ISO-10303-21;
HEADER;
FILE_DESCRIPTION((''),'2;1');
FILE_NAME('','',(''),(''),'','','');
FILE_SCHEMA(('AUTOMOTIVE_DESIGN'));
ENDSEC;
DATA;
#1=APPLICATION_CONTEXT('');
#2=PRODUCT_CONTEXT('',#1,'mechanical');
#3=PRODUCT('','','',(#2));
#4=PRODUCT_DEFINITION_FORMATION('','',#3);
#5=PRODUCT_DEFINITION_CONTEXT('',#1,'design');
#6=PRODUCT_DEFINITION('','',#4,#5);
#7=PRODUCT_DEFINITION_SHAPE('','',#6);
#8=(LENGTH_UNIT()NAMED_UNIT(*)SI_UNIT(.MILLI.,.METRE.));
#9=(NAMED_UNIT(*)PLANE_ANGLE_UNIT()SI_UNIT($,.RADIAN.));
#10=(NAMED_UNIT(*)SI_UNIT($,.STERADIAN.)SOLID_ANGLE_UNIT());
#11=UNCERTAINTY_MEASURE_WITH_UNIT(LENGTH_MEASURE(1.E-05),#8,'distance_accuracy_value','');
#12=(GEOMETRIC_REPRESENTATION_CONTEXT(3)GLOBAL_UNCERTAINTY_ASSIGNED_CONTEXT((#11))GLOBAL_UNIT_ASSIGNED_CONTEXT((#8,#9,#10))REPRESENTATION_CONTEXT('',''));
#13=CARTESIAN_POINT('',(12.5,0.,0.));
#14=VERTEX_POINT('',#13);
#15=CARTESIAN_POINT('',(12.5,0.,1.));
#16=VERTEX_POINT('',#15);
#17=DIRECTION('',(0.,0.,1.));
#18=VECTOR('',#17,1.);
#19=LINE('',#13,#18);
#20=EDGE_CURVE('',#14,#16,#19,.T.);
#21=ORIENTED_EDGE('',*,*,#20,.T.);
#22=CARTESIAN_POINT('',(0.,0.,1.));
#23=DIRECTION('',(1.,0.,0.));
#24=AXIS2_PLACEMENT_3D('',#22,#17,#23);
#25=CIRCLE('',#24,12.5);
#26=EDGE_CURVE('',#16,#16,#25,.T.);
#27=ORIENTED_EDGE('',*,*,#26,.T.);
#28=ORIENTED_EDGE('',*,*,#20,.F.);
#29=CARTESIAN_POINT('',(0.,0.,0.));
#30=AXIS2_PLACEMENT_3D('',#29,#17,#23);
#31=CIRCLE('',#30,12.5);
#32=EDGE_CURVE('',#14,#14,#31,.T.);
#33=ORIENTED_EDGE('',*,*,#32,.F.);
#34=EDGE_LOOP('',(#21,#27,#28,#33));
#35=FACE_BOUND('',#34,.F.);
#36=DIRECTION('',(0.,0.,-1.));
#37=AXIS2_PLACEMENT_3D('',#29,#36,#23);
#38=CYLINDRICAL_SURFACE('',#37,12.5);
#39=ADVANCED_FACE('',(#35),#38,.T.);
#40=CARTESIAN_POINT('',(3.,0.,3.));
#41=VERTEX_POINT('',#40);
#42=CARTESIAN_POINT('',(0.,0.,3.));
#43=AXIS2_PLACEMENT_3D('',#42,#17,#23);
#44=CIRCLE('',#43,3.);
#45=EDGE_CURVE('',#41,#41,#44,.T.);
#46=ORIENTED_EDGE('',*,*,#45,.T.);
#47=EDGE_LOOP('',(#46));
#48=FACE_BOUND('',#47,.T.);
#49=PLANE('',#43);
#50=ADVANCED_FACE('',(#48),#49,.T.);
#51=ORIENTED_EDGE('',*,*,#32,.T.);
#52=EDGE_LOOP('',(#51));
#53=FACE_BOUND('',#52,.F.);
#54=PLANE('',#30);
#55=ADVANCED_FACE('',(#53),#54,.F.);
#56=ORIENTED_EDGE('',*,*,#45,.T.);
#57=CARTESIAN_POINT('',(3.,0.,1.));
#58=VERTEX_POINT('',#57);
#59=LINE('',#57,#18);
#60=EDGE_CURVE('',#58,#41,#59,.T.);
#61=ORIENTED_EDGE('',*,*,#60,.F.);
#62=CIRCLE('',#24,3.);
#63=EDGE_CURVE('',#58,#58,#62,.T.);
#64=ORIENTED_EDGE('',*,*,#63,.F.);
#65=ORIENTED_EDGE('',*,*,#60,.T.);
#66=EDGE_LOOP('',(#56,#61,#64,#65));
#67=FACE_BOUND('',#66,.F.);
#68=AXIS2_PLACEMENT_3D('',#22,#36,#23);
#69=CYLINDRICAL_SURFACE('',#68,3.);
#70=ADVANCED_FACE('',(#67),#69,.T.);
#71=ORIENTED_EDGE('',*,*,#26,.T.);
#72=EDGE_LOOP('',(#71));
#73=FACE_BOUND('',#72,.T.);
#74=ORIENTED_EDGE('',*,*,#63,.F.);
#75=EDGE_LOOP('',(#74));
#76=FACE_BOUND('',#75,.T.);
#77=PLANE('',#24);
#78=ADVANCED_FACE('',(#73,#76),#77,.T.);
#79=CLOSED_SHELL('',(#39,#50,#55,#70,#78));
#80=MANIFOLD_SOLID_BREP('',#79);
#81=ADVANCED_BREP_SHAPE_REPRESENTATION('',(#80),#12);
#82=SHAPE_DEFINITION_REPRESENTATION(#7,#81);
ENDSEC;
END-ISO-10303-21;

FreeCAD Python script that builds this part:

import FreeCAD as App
import Part
import Sketcher

V = App.Vector
Q = App.Units.Quantity

doc = App.newDocument("Part")
params = doc.addObject("Spreadsheet::Sheet", "Params")
for row, (alias, value) in enumerate([
    ("sketch1_diameter", "25 mm"),
    ("pad1_length", "1 mm"),
    ("sketch2_diameter", "6 mm"),
    ("pad2_length", "2 mm"),
], start=1):
    params.set(f"A{row}", alias)
    params.set(f"B{row}", "=" + value)
    params.setAlias(f"B{row}", alias)

body = doc.addObject("PartDesign::Body", "Body")

# Sketch on XY plane
sketch1 = doc.addObject("Sketcher::SketchObject", "Sketch")
body.addObject(sketch1)
sketch1.AttachmentSupport = (doc.XY_Plane, [""])
sketch1.MapMode = "FlatFace"
sketch1.addGeometry(Part.Circle(V(0, 0, 0), V(0, 0, 1), 12), False)
sketch1.addConstraint(Sketcher.Constraint("Coincident", 0, 3, -1, 1))
sketch1.addConstraint(Sketcher.Constraint("Diameter", 0, Q("25 mm")))
sketch1.setExpression("Constraints[1]", "Params.sketch1_diameter")
pad1 = doc.addObject("PartDesign::Pad", "Pad")
body.addObject(pad1)
pad1.Profile = sketch1
pad1.setExpression("Length", "Params.pad1_length")

# Sketch on XY plane
sketch2 = doc.addObject("Sketcher::SketchObject", "Sketch001")
body.addObject(sketch2)
sketch2.AttachmentSupport = (doc.XY_Plane, [""])
sketch2.MapMode = "FlatFace"
sketch2.AttachmentOffset = App.Placement(V(0, 0, 1), App.Rotation())
sketch2.addGeometry(Part.Circle(V(0, 0, 0), V(0, 0, 1), 3), False)
sketch2.addConstraint(Sketcher.Constraint("Coincident", 0, 3, -1, 1))
sketch2.addConstraint(Sketcher.Constraint("Diameter", 0, Q("6 mm")))
sketch2.setExpression("Constraints[1]", "Params.sketch2_diameter")
pad2 = doc.addObject("PartDesign::Pad", "Pad001")
body.addObject(pad2)
pad2.Profile = sketch2
pad2.setExpression("Length", "Params.pad2_length")

doc.recompute()
